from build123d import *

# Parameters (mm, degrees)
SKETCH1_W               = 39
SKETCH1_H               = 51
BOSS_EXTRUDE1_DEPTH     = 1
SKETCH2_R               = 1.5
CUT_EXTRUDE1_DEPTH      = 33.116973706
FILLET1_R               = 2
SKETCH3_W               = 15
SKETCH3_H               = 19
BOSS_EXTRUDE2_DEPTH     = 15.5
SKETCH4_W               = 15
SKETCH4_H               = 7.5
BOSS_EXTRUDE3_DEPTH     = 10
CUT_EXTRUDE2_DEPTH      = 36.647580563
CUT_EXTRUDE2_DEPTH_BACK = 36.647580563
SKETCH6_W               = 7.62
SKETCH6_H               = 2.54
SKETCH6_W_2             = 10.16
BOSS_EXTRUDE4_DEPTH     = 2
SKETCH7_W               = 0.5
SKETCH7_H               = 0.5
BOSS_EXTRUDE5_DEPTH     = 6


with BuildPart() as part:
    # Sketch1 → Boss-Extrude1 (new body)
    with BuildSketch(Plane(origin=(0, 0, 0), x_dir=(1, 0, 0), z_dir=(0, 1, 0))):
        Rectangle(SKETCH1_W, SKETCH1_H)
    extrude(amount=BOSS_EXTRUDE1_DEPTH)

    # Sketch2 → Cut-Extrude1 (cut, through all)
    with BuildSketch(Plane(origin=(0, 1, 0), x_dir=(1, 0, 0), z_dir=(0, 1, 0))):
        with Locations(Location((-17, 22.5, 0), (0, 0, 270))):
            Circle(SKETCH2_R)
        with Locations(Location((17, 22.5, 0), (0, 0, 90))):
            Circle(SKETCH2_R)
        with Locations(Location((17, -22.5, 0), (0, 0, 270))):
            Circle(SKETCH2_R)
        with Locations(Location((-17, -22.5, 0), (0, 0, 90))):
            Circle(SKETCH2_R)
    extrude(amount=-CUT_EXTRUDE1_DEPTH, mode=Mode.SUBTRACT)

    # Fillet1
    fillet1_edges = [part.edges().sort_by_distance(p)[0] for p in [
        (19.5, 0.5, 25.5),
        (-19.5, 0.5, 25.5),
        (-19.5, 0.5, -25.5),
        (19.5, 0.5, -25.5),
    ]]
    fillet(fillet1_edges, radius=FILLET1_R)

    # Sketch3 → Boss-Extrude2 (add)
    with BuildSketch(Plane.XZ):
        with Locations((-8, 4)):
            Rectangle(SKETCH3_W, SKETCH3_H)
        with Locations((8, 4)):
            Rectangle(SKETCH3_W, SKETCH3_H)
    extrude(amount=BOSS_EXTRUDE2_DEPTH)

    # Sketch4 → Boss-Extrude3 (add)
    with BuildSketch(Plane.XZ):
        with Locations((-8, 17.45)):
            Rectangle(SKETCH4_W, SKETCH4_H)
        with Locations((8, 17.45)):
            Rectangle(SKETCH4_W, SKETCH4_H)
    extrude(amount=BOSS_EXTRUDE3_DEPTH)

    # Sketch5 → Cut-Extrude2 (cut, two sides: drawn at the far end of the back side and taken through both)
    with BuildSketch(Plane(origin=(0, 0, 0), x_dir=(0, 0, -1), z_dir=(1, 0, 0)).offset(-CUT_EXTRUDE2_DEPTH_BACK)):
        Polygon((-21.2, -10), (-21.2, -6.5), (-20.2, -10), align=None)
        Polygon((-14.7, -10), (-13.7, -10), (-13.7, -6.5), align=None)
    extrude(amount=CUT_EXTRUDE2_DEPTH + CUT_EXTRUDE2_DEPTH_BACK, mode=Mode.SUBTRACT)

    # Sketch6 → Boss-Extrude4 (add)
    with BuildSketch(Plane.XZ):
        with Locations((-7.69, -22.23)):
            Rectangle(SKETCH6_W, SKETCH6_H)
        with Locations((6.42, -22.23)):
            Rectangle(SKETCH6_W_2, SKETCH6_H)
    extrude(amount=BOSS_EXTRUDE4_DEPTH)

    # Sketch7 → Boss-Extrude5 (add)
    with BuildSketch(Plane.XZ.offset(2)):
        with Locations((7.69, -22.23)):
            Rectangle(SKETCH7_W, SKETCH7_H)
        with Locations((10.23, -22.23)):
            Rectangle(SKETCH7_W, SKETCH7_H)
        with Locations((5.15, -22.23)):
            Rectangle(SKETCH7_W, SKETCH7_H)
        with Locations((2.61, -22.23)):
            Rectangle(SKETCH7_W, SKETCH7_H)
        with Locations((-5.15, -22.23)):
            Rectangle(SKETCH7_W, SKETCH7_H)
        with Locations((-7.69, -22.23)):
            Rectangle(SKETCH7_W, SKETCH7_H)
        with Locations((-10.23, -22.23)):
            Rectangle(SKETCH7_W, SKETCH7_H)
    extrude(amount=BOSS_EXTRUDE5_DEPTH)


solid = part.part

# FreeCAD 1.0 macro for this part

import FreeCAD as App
import Part
import Sketcher


def edges_at(feature, points):
    """Names of the edges that pass closest to the given points."""
    edges = feature.Shape.Edges
    near = lambda p: min(range(len(edges)), key=lambda i: edges[i].distToShape(Part.Vertex(*p))[0])
    return sorted({f"Edge{near(p) + 1}" for p in points})


def add_polygon(sketch, points):
    """Adds a closed chain of lines whose ends are joined by coincident constraints."""
    first, n = sketch.GeometryCount, len(points)
    for a, b in zip(points, points[1:] + points[:1]):
        sketch.addGeometry(Part.LineSegment(App.Vector(*a, 0), App.Vector(*b, 0)), False)
    for i in range(n):
        sketch.addConstraint(Sketcher.Constraint("Coincident", first + i, 2, first + (i + 1) % n, 1))

doc = App.newDocument("Part")
body = doc.addObject("PartDesign::Body", "Body")

# Sketch on XZ plane
sketch1 = doc.addObject("Sketcher::SketchObject", "Sketch")
body.addObject(sketch1)
sketch1.AttachmentSupport = (doc.XZ_Plane, [""])
sketch1.MapMode = "FlatFace"
add_polygon(sketch1, [(-19.5, -25.5), (-19.5, 25.5), (19.5, 25.5), (19.5, -25.5)])  # lines 0-3
sketch1.addConstraint([
    Sketcher.Constraint("Vertical", 0),
    Sketcher.Constraint("Horizontal", 1),
    Sketcher.Constraint("Vertical", 2),
    Sketcher.Constraint("Horizontal", 3),
    Sketcher.Constraint("Symmetric", 0, 2, 2, 2, -1, 1),
    Sketcher.Constraint("DistanceX", 1, 1, 1, 2, 39.0),
    Sketcher.Constraint("DistanceY", 0, 1, 0, 2, 51.0),
])
pad1 = doc.addObject("PartDesign::Pad", "Pad")
body.addObject(pad1)
pad1.Profile = sketch1
pad1.Length = 1
pad1.Reversed = True

# Sketch on XZ plane
sketch2 = doc.addObject("Sketcher::SketchObject", "Sketch001")
body.addObject(sketch2)
sketch2.AttachmentSupport = (doc.XZ_Plane, [""])
sketch2.MapMode = "FlatFace"
sketch2.AttachmentOffset = App.Placement(App.Vector(0, 0, -1), App.Rotation())
sketch2.addGeometry([
    Part.Circle(App.Vector(-17, -22.5, 0), App.Vector(0, 0, 1), 1.5),
    Part.Circle(App.Vector(17, -22.5, 0), App.Vector(0, 0, 1), 1.5),
    Part.Circle(App.Vector(17, 22.5, 0), App.Vector(0, 0, 1), 1.5),
    Part.Circle(App.Vector(-17, 22.5, 0), App.Vector(0, 0, 1), 1.5),
], False)
sketch2.addConstraint([
    Sketcher.Constraint("Equal", 0, 1),
    Sketcher.Constraint("Equal", 1, 2),
    Sketcher.Constraint("Equal", 2, 3),
    Sketcher.Constraint("Symmetric", 0, 3, 2, 3, -1, 1),
    Sketcher.Constraint("Symmetric", 1, 3, 3, 3, -1, 1),
    Sketcher.Constraint("Symmetric", 0, 3, 1, 3, -2),
    Sketcher.Constraint("Diameter", 0, 3.0),
    Sketcher.Constraint("DistanceX", 0, 3, -1, 1, 17.0),
    Sketcher.Constraint("DistanceY", 1, 3, 2, 3, 45.0),
])
pocket1 = doc.addObject("PartDesign::Pocket", "Pocket")
body.addObject(pocket1)
pocket1.Profile = sketch2
pocket1.Type = "ThroughAll"
pocket1.Reversed = True
doc.recompute()

fillet = doc.addObject("PartDesign::Fillet", "Fillet")
body.addObject(fillet)
fillet.Base = (pocket1, edges_at(pocket1, [
    (19.5, 0.5, 25.5),
    (-19.5, 0.5, 25.5),
    (-19.5, 0.5, -25.5),
    (19.5, 0.5, -25.5),
]))
fillet.Radius = 2

# Sketch on XZ plane
sketch3 = doc.addObject("Sketcher::SketchObject", "Sketch002")
body.addObject(sketch3)
sketch3.AttachmentSupport = (doc.XZ_Plane, [""])
sketch3.MapMode = "FlatFace"
add_polygon(sketch3, [(-15.5, 13.5), (-15.5, -5.5), (-0.5, -5.5), (-0.5, 13.5)])  # lines 0-3
add_polygon(sketch3, [(0.5, 13.5), (0.5, -5.5), (15.5, -5.5), (15.5, 13.5)])  # lines 4-7
sketch3.addConstraint([
    Sketcher.Constraint("Vertical", 0),
    Sketcher.Constraint("Horizontal", 1),
    Sketcher.Constraint("Vertical", 2),
    Sketcher.Constraint("Horizontal", 3),
    Sketcher.Constraint("Vertical", 4),
    Sketcher.Constraint("Horizontal", 5),
    Sketcher.Constraint("Vertical", 6),
    Sketcher.Constraint("Horizontal", 7),
    Sketcher.Constraint("Symmetric", 1, 2, 4, 2, -2),
    Sketcher.Constraint("Symmetric", 3, 2, 6, 2, -2),
    Sketcher.Constraint("DistanceX", 1, 1, 1, 2, 15.0),
    Sketcher.Constraint("DistanceY", 0, 2, 0, 1, 19.0),
    Sketcher.Constraint("DistanceX", 1, 2, 4, 2, 1.0),
    Sketcher.Constraint("DistanceY", 0, 2, -1, 1, 5.5),
])
pad2 = doc.addObject("PartDesign::Pad", "Pad001")
body.addObject(pad2)
pad2.Profile = sketch3
pad2.Length = 15.5

# Sketch on XZ plane
sketch4 = doc.addObject("Sketcher::SketchObject", "Sketch003")
body.addObject(sketch4)
sketch4.AttachmentSupport = (doc.XZ_Plane, [""])
sketch4.MapMode = "FlatFace"
add_polygon(sketch4, [(-15.5, 21.2), (-15.5, 13.7), (-0.5, 13.7), (-0.5, 21.2)])  # lines 0-3
add_polygon(sketch4, [(0.5, 21.2), (0.5, 13.7), (15.5, 13.7), (15.5, 21.2)])  # lines 4-7
sketch4.addConstraint([
    Sketcher.Constraint("Vertical", 0),
    Sketcher.Constraint("Horizontal", 1),
    Sketcher.Constraint("Vertical", 2),
    Sketcher.Constraint("Horizontal", 3),
    Sketcher.Constraint("Vertical", 4),
    Sketcher.Constraint("Horizontal", 5),
    Sketcher.Constraint("Vertical", 6),
    Sketcher.Constraint("Horizontal", 7),
    Sketcher.Constraint("Symmetric", 1, 2, 4, 2, -2),
    Sketcher.Constraint("Symmetric", 3, 2, 6, 2, -2),
    Sketcher.Constraint("DistanceX", 1, 1, 1, 2, 15.0),
    Sketcher.Constraint("DistanceY", 0, 2, 0, 1, 7.5),
    Sketcher.Constraint("DistanceX", 1, 2, 4, 2, 1.0),
    Sketcher.Constraint("DistanceY", -1, 1, 0, 2, 13.7),
])
pad3 = doc.addObject("PartDesign::Pad", "Pad002")
body.addObject(pad3)
pad3.Profile = sketch4
pad3.Length = 10

# Sketch on YZ plane
sketch5 = doc.addObject("Sketcher::SketchObject", "Sketch004")
body.addObject(sketch5)
sketch5.AttachmentSupport = (doc.YZ_Plane, [""])
sketch5.MapMode = "FlatFace"
add_polygon(sketch5, [(-6.5, 21.2), (-10, 21.2), (-10, 20.2)])  # lines 0-2
add_polygon(sketch5, [(-10, 14.7), (-10, 13.7), (-6.5, 13.7)])  # lines 3-5
sketch5.addConstraint([
    Sketcher.Constraint("Horizontal", 0),
    Sketcher.Constraint("Vertical", 1),
    Sketcher.Constraint("Vertical", 3),
    Sketcher.Constraint("Horizontal", 4),
    Sketcher.Constraint("Vertical", 1, 2, 3, 2),
    Sketcher.Constraint("Vertical", 2, 2, 4, 2),
    Sketcher.Constraint("Equal", 1, 3),
    Sketcher.Constraint("DistanceY", 1, 2, 1, 1, 1.0),
    Sketcher.Constraint("DistanceX", 0, 2, 0, 1, 3.5),
    Sketcher.Constraint("DistanceX", 0, 2, -1, 1, 10.0),
    Sketcher.Constraint("DistanceY", -1, 1, 0, 2, 21.2),
    Sketcher.Constraint("DistanceY", -1, 1, 3, 2, 13.7),
])
pocket2 = doc.addObject("PartDesign::Pocket", "Pocket001")
body.addObject(pocket2)
pocket2.Profile = sketch5
pocket2.Type = "ThroughAll"
pocket2.Midplane = True

# Sketch on XZ plane
sketch6 = doc.addObject("Sketcher::SketchObject", "Sketch005")
body.addObject(sketch6)
sketch6.AttachmentSupport = (doc.XZ_Plane, [""])
sketch6.MapMode = "FlatFace"
add_polygon(sketch6, [(-11.5, -20.96), (-11.5, -23.5), (-3.88, -23.5), (-3.88, -20.96)])  # lines 0-3
add_polygon(sketch6, [(1.34, -20.96), (1.34, -23.5), (11.5, -23.5), (11.5, -20.96)])  # lines 4-7
sketch6.addConstraint([
    Sketcher.Constraint("Vertical", 0),
    Sketcher.Constraint("Horizontal", 1),
    Sketcher.Constraint("Vertical", 2),
    Sketcher.Constraint("Horizontal", 3),
    Sketcher.Constraint("Vertical", 4),
    Sketcher.Constraint("Horizontal", 5),
    Sketcher.Constraint("Vertical", 6),
    Sketcher.Constraint("Horizontal", 7),
    Sketcher.Constraint("Symmetric", 0, 2, 5, 2, -2),
    Sketcher.Constraint("Horizontal", 3, 2, 6, 2),
    Sketcher.Constraint("DistanceX", 0, 2, 5, 2, 23.0),
    Sketcher.Constraint("DistanceX", 1, 1, 1, 2, 7.62),
    Sketcher.Constraint("DistanceX", 5, 1, 5, 2, 10.16),
    Sketcher.Constraint("DistanceY", 0, 2, 0, 1, 2.54),
    Sketcher.Constraint("DistanceY", 0, 2, -1, 1, 23.5),
])
pad4 = doc.addObject("PartDesign::Pad", "Pad003")
body.addObject(pad4)
pad4.Profile = sketch6
pad4.Length = 2

# Sketch on XZ plane
sketch7 = doc.addObject("Sketcher::SketchObject", "Sketch006")
body.addObject(sketch7)
sketch7.AttachmentSupport = (doc.XZ_Plane, [""])
sketch7.MapMode = "FlatFace"
sketch7.AttachmentOffset = App.Placement(App.Vector(0, 0, 2), App.Rotation())
add_polygon(sketch7, [(7.44, -21.98), (7.44, -22.48), (7.94, -22.48), (7.94, -21.98)])  # lines 0-3
add_polygon(sketch7, [(9.98, -21.98), (9.98, -22.48), (10.48, -22.48), (10.48, -21.98)])  # lines 4-7
add_polygon(sketch7, [(4.9, -21.98), (4.9, -22.48), (5.4, -22.48), (5.4, -21.98)])  # lines 8-11
add_polygon(sketch7, [(2.36, -21.98), (2.36, -22.48), (2.86, -22.48), (2.86, -21.98)])  # lines 12-15
add_polygon(sketch7, [(-5.4, -21.98), (-5.4, -22.48), (-4.9, -22.48), (-4.9, -21.98)])  # lines 16-19
add_polygon(sketch7, [(-7.94, -21.98), (-7.94, -22.48), (-7.44, -22.48), (-7.44, -21.98)])  # lines 20-23
add_polygon(sketch7, [(-10.48, -21.98), (-10.48, -22.48), (-9.98, -22.48), (-9.98, -21.98)])  # lines 24-27
sketch7.addConstraint([
    Sketcher.Constraint("Vertical", 0),
    Sketcher.Constraint("Horizontal", 1),
    Sketcher.Constraint("Vertical", 2),
    Sketcher.Constraint("Horizontal", 3),
    Sketcher.Constraint("Vertical", 4),
    Sketcher.Constraint("Horizontal", 5),
    Sketcher.Constraint("Vertical", 6),
    Sketcher.Constraint("Horizontal", 7),
    Sketcher.Constraint("Vertical", 8),
    Sketcher.Constraint("Horizontal", 9),
    Sketcher.Constraint("Vertical", 10),
    Sketcher.Constraint("Horizontal", 11),
    Sketcher.Constraint("Vertical", 12),
    Sketcher.Constraint("Horizontal", 13),
    Sketcher.Constraint("Vertical", 14),
    Sketcher.Constraint("Horizontal", 15),
    Sketcher.Constraint("Vertical", 16),
    Sketcher.Constraint("Horizontal", 17),
    Sketcher.Constraint("Vertical", 18),
    Sketcher.Constraint("Horizontal", 19),
    Sketcher.Constraint("Vertical", 20),
    Sketcher.Constraint("Horizontal", 21),
    Sketcher.Constraint("Vertical", 22),
    Sketcher.Constraint("Horizontal", 23),
    Sketcher.Constraint("Vertical", 24),
    Sketcher.Constraint("Horizontal", 25),
    Sketcher.Constraint("Vertical", 26),
    Sketcher.Constraint("Horizontal", 27),
    Sketcher.Constraint("Symmetric", 9, 2, 16, 2, -2),
    Sketcher.Constraint("Symmetric", 11, 2, 18, 2, -2),
    Sketcher.Constraint("Symmetric", 1, 2, 20, 2, -2),
    Sketcher.Constraint("Symmetric", 3, 2, 22, 2, -2),
    Sketcher.Constraint("Symmetric", 5, 2, 24, 2, -2),
    Sketcher.Constraint("Symmetric", 7, 2, 26, 2, -2),
    Sketcher.Constraint("Horizontal", 1, 2, 4, 2),
    Sketcher.Constraint("Horizontal", 3, 2, 6, 2),
    Sketcher.Constraint("Horizontal", 5, 2, 8, 2),
    Sketcher.Constraint("Horizontal", 7, 2, 10, 2),
    Sketcher.Constraint("Horizontal", 9, 2, 12, 2),
    Sketcher.Constraint("Horizontal", 11, 2, 14, 2),
    Sketcher.Constraint("Equal", 3, 5),
    Sketcher.Constraint("Equal", 7, 9),
    Sketcher.Constraint("Equal", 11, 13),
    Sketcher.Constraint("Equal", 27, 0),
    Sketcher.Constraint("DistanceX", 1, 1, 1, 2, 0.5),
    Sketcher.Constraint("DistanceX", -1, 1, 8, 2, 4.9),
    Sketcher.Constraint("DistanceX", 20, 2, 12, 2, 10.3),
    Sketcher.Constraint("DistanceX", -1, 1, 0, 2, 7.44),
    Sketcher.Constraint("DistanceY", 0, 2, -1, 1, 22.48),
    Sketcher.Constraint("DistanceX", -1, 1, 4, 2, 9.98),
])
pad5 = doc.addObject("PartDesign::Pad", "Pad004")
body.addObject(pad5)
pad5.Profile = sketch7
pad5.Length = 6

doc.recompute()
